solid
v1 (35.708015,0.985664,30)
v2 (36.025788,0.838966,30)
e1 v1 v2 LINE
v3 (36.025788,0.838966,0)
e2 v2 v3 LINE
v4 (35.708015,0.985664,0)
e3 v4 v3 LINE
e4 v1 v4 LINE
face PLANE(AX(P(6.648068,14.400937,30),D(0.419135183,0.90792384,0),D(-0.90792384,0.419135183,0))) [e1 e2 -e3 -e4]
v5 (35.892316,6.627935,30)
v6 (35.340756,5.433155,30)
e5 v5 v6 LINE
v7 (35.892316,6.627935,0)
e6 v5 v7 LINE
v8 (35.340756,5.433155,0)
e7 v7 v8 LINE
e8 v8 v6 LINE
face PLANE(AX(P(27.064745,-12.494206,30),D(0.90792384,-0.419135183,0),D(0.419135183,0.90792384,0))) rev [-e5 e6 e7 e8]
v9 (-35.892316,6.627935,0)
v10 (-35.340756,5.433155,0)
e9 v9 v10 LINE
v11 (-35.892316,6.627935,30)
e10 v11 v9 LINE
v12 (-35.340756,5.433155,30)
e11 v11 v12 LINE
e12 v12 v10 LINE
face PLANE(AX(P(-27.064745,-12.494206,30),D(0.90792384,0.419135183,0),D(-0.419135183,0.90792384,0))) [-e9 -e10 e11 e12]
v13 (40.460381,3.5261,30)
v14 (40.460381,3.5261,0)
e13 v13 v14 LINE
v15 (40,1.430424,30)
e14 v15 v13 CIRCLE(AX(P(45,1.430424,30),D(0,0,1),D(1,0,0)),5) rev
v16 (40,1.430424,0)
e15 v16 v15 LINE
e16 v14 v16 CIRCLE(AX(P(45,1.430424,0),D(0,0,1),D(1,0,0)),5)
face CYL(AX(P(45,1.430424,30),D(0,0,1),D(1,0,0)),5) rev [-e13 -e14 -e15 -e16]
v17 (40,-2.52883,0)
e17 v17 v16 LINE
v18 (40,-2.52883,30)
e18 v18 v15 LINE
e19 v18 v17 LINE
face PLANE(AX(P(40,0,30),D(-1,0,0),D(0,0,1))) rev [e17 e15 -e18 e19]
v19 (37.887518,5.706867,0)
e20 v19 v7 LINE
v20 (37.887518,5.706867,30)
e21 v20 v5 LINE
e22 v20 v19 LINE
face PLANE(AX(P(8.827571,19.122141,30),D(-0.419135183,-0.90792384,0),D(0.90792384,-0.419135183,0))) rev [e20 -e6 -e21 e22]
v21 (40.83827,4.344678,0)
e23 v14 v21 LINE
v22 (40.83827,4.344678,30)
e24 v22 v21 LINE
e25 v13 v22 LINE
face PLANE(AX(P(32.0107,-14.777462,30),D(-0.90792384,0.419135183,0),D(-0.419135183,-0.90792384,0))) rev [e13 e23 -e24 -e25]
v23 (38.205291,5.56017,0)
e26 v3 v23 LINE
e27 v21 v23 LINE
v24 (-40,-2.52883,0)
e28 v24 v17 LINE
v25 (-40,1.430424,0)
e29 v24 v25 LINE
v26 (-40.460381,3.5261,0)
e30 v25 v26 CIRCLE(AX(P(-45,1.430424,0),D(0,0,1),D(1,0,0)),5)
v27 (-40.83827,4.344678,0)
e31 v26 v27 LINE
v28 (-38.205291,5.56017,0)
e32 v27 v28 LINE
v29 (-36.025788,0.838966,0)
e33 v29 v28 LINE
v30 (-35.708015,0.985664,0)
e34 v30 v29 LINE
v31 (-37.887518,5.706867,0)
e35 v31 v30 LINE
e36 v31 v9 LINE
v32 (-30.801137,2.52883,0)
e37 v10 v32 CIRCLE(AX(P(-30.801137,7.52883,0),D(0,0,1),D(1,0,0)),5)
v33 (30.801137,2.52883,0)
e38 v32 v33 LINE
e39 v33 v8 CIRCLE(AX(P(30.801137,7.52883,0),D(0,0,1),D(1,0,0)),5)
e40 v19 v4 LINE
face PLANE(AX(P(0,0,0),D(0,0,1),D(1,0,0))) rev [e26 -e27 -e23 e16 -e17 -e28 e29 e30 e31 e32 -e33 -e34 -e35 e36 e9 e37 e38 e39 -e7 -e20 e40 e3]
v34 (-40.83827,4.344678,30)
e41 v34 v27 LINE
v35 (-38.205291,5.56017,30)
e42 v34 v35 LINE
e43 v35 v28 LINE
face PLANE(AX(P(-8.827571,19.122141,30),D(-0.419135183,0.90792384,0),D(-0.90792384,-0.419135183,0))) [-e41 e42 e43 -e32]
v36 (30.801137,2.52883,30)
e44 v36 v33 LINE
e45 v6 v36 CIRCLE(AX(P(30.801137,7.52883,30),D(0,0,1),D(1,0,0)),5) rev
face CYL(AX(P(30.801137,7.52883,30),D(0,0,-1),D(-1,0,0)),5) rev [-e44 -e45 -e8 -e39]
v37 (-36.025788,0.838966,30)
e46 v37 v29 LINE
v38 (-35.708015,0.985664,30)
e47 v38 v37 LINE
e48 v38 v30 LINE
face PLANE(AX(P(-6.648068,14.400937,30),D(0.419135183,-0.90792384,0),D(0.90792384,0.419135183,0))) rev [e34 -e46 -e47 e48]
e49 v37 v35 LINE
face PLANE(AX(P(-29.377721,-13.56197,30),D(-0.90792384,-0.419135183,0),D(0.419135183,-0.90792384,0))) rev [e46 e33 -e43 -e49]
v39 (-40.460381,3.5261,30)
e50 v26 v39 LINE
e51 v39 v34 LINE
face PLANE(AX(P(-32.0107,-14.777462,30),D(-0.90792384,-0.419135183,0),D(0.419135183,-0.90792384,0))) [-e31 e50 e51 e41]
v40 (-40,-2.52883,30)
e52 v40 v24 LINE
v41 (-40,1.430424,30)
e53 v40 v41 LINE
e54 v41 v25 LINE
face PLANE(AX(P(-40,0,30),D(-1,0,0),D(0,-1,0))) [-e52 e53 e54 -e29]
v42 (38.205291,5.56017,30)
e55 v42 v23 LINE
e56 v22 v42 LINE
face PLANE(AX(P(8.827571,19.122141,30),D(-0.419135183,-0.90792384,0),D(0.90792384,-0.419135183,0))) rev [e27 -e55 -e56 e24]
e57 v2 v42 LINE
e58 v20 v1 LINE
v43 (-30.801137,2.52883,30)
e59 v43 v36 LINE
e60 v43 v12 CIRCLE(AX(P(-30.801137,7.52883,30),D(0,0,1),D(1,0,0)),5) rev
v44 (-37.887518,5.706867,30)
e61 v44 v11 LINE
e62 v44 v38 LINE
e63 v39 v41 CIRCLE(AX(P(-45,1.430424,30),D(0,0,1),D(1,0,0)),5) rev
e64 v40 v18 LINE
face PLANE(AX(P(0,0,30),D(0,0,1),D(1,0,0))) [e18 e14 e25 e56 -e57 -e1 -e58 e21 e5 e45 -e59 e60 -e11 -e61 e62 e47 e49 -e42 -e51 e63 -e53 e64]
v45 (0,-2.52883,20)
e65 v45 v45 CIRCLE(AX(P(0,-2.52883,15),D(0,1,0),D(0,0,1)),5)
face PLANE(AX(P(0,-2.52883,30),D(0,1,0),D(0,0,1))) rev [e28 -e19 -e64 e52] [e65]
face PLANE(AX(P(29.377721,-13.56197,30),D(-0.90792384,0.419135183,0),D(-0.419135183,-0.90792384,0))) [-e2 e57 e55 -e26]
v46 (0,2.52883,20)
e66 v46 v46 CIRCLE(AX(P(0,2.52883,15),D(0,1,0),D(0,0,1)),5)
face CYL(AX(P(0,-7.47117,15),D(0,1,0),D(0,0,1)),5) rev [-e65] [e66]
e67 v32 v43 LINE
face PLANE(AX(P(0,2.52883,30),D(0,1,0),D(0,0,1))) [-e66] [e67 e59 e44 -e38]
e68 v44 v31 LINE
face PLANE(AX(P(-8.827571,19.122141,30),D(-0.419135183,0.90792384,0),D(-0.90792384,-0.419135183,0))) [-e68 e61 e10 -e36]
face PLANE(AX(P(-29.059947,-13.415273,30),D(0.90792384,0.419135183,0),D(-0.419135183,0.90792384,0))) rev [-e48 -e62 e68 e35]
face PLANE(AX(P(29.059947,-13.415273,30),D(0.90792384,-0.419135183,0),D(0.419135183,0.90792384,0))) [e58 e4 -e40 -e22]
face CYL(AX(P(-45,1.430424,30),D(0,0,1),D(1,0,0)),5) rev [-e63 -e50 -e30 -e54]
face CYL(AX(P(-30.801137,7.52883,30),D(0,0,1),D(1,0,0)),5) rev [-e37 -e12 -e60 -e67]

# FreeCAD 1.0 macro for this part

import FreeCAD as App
import Part
import Sketcher

V = App.Vector
Q = App.Units.Quantity


def edges_at(feature, points):
    """Names of the edges that pass closest to the given points."""
    edges = feature.Shape.Edges
    near = lambda p: min(range(len(edges)), key=lambda i: edges[i].distToShape(Part.Vertex(*p))[0])
    return sorted({f"Edge{near(p) + 1}" for p in points})


def add_polygon(sketch, points):
    """Adds a closed chain of lines whose ends are joined by coincident constraints."""
    first, n = sketch.GeometryCount, len(points)
    for a, b in zip(points, points[1:] + points[:1]):
        sketch.addGeometry(Part.LineSegment(App.Vector(*a, 0), App.Vector(*b, 0)), False)
    for i in range(n):
        sketch.addConstraint(Sketcher.Constraint("Coincident", first + i, 2, first + (i + 1) % n, 1))

doc = App.newDocument("Part")
body = doc.addObject("PartDesign::Body", "Body")

# Sketch on XY plane
sketch1 = body.newObject("Sketcher::SketchObject", "Sketch")
sketch1.AttachmentSupport = (doc.getObject("XY_Plane"), [""])
sketch1.MapMode = "FlatFace"
add_polygon(sketch1, [(40, -2.53), (40, 2.53), (40.84, 4.34), (38.21, 5.56), (36.81, 2.53), (36.03, 0.84), (35.71, 0.99), (36.42, 2.53), (37.89, 5.71), (35.89, 6.63), (34, 2.53), (-34, 2.53), (-35.89, 6.63), (-37.89, 5.71), (-36.42, 2.53), (-35.71, 0.99), (-36.03, 0.84), (-36.81, 2.53), (-38.21, 5.56), (-40.84, 4.34), (-40, 2.53), (-40, -2.53)])  # lines 0-21
sketch1.addConstraint(Sketcher.Constraint("Vertical", 0))
sketch1.addConstraint(Sketcher.Constraint("Horizontal", 10))
sketch1.addConstraint(Sketcher.Constraint("Vertical", 20))
sketch1.addConstraint(Sketcher.Constraint("Horizontal", 21))
sketch1.addConstraint(Sketcher.Constraint("Symmetric", 0, 2, 20, 2, -1, 1))
sketch1.addConstraint(Sketcher.Constraint("Symmetric", 8, 2, 11, 2, -2))
sketch1.addConstraint(Sketcher.Constraint("Symmetric", 7, 2, 12, 2, -2))
sketch1.addConstraint(Sketcher.Constraint("Symmetric", 6, 2, 13, 2, -2))
sketch1.addConstraint(Sketcher.Constraint("Symmetric", 5, 2, 14, 2, -2))
sketch1.addConstraint(Sketcher.Constraint("Symmetric", 4, 2, 15, 2, -2))
sketch1.addConstraint(Sketcher.Constraint("Symmetric", 3, 2, 16, 2, -2))
sketch1.addConstraint(Sketcher.Constraint("Symmetric", 2, 2, 17, 2, -2))
sketch1.addConstraint(Sketcher.Constraint("Symmetric", 1, 2, 18, 2, -2))
sketch1.addConstraint(Sketcher.Constraint("Perpendicular", 1, 2))
sketch1.addConstraint(Sketcher.Constraint("Perpendicular", 2, 3))
sketch1.addConstraint(Sketcher.Constraint("Parallel", 3, 4))
sketch1.addConstraint(Sketcher.Constraint("Perpendicular", 4, 5))
sketch1.addConstraint(Sketcher.Constraint("Perpendicular", 5, 6))
sketch1.addConstraint(Sketcher.Constraint("Parallel", 6, 7))
sketch1.addConstraint(Sketcher.Constraint("Perpendicular", 7, 8))
sketch1.addConstraint(Sketcher.Constraint("Perpendicular", 8, 9))
sketch1.addConstraint(Sketcher.Constraint("Perpendicular", 11, 12))
sketch1.addConstraint(Sketcher.Constraint("Perpendicular", 18, 19))
sketch1.addConstraint(Sketcher.Constraint("Horizontal", 0, 2, 3, 2))
sketch1.addConstraint(Sketcher.Constraint("Horizontal", 3, 2, 6, 2))
sketch1.addConstraint(Sketcher.Constraint("Horizontal", 6, 2, 9, 2))
sketch1.addConstraint(Sketcher.Constraint("DistanceX", 10, 2, 10, 1, Q("68 mm")))
sketch1.addConstraint(Sketcher.Constraint("DistanceX", 21, 1, 21, 2, Q("80 mm")))
sketch1.addConstraint(Sketcher.Constraint("Distance", 1, Q("2 mm")))
sketch1.addConstraint(Sketcher.Constraint("Distance", 2, Q("2.9 mm")))
sketch1.addConstraint(Sketcher.Constraint("Angle", 1, Q("65.22 deg")))
sketch1.addConstraint(Sketcher.Constraint("Distance", 5, Q("0.35 mm")))
sketch1.addConstraint(Sketcher.Constraint("DistanceY", 0, 1, 0, 2, Q("5.057661 mm")))
sketch1.addConstraint(Sketcher.Constraint("DistanceX", 11, 2, 14, 2, Q("0.184301 mm")))
sketch1.addConstraint(Sketcher.Constraint("Distance", 4, Q("1.86124 mm")))
pad1 = body.newObject("PartDesign::Pad", "Pad")
pad1.Profile = sketch1
pad1.Length = 30
doc.recompute()

fillet = body.newObject("PartDesign::Fillet", "Fillet")
fillet.Base = (pad1, edges_at(pad1, [
    (34, 2.529, 15),
    (40, 2.529, 15),
    (-40, 2.529, 15),
    (-34, 2.529, 15),
]))
fillet.Radius = 5

# Sketch on XZ plane
sketch2 = body.newObject("Sketcher::SketchObject", "Sketch001")
sketch2.AttachmentSupport = (doc.getObject("XZ_Plane"), [""])
sketch2.MapMode = "FlatFace"
sketch2.AttachmentOffset = App.Placement(V(0, 0, -2.52883), App.Rotation())
sketch2.addGeometry(Part.Circle(V(0, 15, 0), V(0, 0, 1), 5), False)
sketch2.addConstraint(Sketcher.Constraint("PointOnObject", 0, 3, -2))
sketch2.addConstraint(Sketcher.Constraint("Diameter", 0, Q("10 mm")))
sketch2.addConstraint(Sketcher.Constraint("DistanceY", -1, 1, 0, 3, Q("15 mm")))
pocket1 = body.newObject("PartDesign::Pocket", "Pocket")
pocket1.Profile = sketch2
pocket1.Length = 10
pocket1.Reversed = True

doc.recompute()
